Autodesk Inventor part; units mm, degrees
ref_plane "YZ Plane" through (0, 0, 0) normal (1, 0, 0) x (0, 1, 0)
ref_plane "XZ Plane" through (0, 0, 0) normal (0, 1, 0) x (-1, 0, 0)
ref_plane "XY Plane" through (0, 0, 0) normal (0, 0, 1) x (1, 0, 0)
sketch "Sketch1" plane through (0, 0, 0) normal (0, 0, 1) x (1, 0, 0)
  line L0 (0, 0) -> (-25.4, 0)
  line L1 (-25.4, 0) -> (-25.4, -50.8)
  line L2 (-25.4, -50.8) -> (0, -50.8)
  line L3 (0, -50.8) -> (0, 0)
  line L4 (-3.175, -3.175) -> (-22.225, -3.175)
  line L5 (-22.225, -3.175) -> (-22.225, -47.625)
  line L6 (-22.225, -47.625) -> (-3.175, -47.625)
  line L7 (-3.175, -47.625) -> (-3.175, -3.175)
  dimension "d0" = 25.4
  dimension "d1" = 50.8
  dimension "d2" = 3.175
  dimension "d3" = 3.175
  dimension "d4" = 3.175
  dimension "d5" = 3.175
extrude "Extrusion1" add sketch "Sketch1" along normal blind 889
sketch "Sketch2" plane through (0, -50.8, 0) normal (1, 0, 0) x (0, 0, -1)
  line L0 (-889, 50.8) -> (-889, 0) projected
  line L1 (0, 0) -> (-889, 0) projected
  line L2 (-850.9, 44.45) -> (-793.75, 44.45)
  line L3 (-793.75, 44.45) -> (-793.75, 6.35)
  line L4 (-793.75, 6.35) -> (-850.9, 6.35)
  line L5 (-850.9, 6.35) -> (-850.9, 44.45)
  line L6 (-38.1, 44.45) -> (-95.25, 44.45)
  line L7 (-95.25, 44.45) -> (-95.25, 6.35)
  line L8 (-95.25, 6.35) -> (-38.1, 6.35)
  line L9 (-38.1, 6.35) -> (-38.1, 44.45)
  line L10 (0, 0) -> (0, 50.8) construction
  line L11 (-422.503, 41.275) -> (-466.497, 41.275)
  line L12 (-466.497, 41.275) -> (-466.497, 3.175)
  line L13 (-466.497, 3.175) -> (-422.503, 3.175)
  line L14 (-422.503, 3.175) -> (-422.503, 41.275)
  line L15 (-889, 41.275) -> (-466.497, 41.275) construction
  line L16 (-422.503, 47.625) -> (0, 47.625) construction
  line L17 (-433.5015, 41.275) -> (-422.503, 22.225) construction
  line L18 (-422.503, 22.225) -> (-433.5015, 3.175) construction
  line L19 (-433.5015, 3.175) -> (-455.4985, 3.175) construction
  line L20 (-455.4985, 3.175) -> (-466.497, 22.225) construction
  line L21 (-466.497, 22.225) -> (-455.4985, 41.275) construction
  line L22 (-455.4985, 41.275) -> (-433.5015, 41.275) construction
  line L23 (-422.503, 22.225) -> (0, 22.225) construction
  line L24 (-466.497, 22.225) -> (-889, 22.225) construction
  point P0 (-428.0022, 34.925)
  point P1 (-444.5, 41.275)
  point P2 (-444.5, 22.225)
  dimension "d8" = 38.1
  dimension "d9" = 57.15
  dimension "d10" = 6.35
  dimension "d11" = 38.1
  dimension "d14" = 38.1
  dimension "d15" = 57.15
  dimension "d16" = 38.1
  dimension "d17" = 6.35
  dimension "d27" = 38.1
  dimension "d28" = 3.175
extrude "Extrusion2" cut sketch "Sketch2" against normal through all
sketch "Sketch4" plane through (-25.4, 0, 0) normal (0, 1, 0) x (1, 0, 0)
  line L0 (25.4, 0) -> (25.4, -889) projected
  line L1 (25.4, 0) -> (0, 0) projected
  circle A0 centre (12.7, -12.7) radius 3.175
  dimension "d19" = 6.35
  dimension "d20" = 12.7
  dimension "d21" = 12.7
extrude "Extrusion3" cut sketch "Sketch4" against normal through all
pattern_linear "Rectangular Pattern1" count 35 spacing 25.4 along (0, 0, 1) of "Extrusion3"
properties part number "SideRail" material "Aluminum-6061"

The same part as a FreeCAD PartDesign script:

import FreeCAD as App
import Part
import Sketcher

V = App.Vector
Q = App.Units.Quantity

doc = App.newDocument("Part")
body = doc.addObject("PartDesign::Body", "Body")

# Sketch on XY plane
sketch1 = body.newObject("Sketcher::SketchObject", "Sketch")
sketch1.AttachmentSupport = (doc.getObject("XY_Plane"), [""])
sketch1.MapMode = "FlatFace"
sketch1.addGeometry([
    Part.LineSegment(V(0, -51, 0), V(0, 0, 0)),  # 0
    Part.LineSegment(V(0, 0, 0), V(-25, 0, 0)),  # 1
    Part.LineSegment(V(-25, 0, 0), V(-25, -51, 0)),  # 2
    Part.LineSegment(V(-25, -51, 0), V(0, -51, 0)),  # 3
    Part.LineSegment(V(-22, -3, 0), V(-3, -3, 0)),  # 4
    Part.LineSegment(V(-3, -3, 0), V(-3, -48, 0)),  # 5
    Part.LineSegment(V(-3, -48, 0), V(-22, -48, 0)),  # 6
    Part.LineSegment(V(-22, -48, 0), V(-22, -3, 0)),  # 7
], False)
sketch1.addConstraint([
    Sketcher.Constraint("Coincident", 0, 2, 1, 1),
    Sketcher.Constraint("Coincident", 1, 2, 2, 1),
    Sketcher.Constraint("Coincident", 2, 2, 3, 1),
    Sketcher.Constraint("Coincident", 3, 2, 0, 1),
    Sketcher.Constraint("Coincident", 4, 2, 5, 1),
    Sketcher.Constraint("Coincident", 5, 2, 6, 1),
    Sketcher.Constraint("Coincident", 6, 2, 7, 1),
    Sketcher.Constraint("Coincident", 7, 2, 4, 1),
    Sketcher.Constraint("Vertical", 0),
    Sketcher.Constraint("Horizontal", 1),
    Sketcher.Constraint("Vertical", 2),
    Sketcher.Constraint("Horizontal", 3),
    Sketcher.Constraint("Horizontal", 4),
    Sketcher.Constraint("Vertical", 5),
    Sketcher.Constraint("Horizontal", 6),
    Sketcher.Constraint("Vertical", 7),
    Sketcher.Constraint("Coincident", 0, 2, -1, 1),
    Sketcher.Constraint("DistanceX", 1, 2, 1, 1, Q("1 in")),
    Sketcher.Constraint("DistanceY", 0, 1, 0, 2, Q("2 in")),
    Sketcher.Constraint("DistanceX", 4, 2, -1, 1, Q("0.125 in")),
    Sketcher.Constraint("DistanceY", 4, 2, -1, 1, Q("0.125 in")),
    Sketcher.Constraint("DistanceY", 3, 2, 5, 2, Q("0.125 in")),
    Sketcher.Constraint("DistanceX", 2, 2, 6, 2, Q("0.125 in")),
])
pad1 = body.newObject("PartDesign::Pad", "Pad")
pad1.Profile = sketch1
pad1.Length = Q("35 in")

# Sketch on YZ plane
sketch2 = body.newObject("Sketcher::SketchObject", "Sketch001")
sketch2.AttachmentSupport = (doc.getObject("YZ_Plane"), [""])
sketch2.MapMode = "FlatFace"
sketch2.addGeometry([
    Part.LineSegment(V(-6, 794, 0), V(-6, 851, 0)),  # 0
    Part.LineSegment(V(-6, 851, 0), V(-44, 851, 0)),  # 1
    Part.LineSegment(V(-44, 851, 0), V(-44, 794, 0)),  # 2
    Part.LineSegment(V(-44, 794, 0), V(-6, 794, 0)),  # 3
    Part.LineSegment(V(-44, 38, 0), V(-6, 38, 0)),  # 4
    Part.LineSegment(V(-6, 38, 0), V(-6, 95, 0)),  # 5
    Part.LineSegment(V(-6, 95, 0), V(-44, 95, 0)),  # 6
    Part.LineSegment(V(-44, 95, 0), V(-44, 38, 0)),  # 7
    Part.LineSegment(V(-48, 423, 0), V(-10, 423, 0)),  # 8
    Part.LineSegment(V(-10, 423, 0), V(-10, 466, 0)),  # 9
    Part.LineSegment(V(-10, 466, 0), V(-48, 466, 0)),  # 10
    Part.LineSegment(V(-48, 466, 0), V(-48, 423, 0)),  # 11
], False)
sketch2.addConstraint([
    Sketcher.Constraint("Coincident", 0, 2, 1, 1),
    Sketcher.Constraint("Coincident", 1, 2, 2, 1),
    Sketcher.Constraint("Coincident", 2, 2, 3, 1),
    Sketcher.Constraint("Coincident", 3, 2, 0, 1),
    Sketcher.Constraint("Coincident", 4, 2, 5, 1),
    Sketcher.Constraint("Coincident", 5, 2, 6, 1),
    Sketcher.Constraint("Coincident", 6, 2, 7, 1),
    Sketcher.Constraint("Coincident", 7, 2, 4, 1),
    Sketcher.Constraint("Coincident", 8, 2, 9, 1),
    Sketcher.Constraint("Coincident", 9, 2, 10, 1),
    Sketcher.Constraint("Coincident", 10, 2, 11, 1),
    Sketcher.Constraint("Coincident", 11, 2, 8, 1),
    Sketcher.Constraint("Vertical", 0),
    Sketcher.Constraint("Horizontal", 1),
    Sketcher.Constraint("Vertical", 2),
    Sketcher.Constraint("Horizontal", 3),
    Sketcher.Constraint("Horizontal", 4),
    Sketcher.Constraint("Vertical", 5),
    Sketcher.Constraint("Horizontal", 6),
    Sketcher.Constraint("Vertical", 7),
    Sketcher.Constraint("Horizontal", 8),
    Sketcher.Constraint("Vertical", 9),
    Sketcher.Constraint("Horizontal", 10),
    Sketcher.Constraint("Vertical", 11),
    Sketcher.Constraint("Vertical", 3, 2, 4, 2),
    Sketcher.Constraint("Vertical", 2, 2, 6, 2),
    Sketcher.Constraint("Equal", 6, 8),
    Sketcher.Constraint("Equal", 2, 5),
    Sketcher.Constraint("DistanceX", 1, 2, 1, 1, Q("1.5 in")),
    Sketcher.Constraint("DistanceY", 0, 1, 0, 2, Q("2.25 in")),
    Sketcher.Constraint("DistanceY", -1, 1, 4, 2, Q("1.5 in")),
    Sketcher.Constraint("DistanceX", 0, 2, -1, 1, Q("0.25 in")),
    Sketcher.Constraint("DistanceY", 4, 2, 0, 2, Q("32 in")),
    Sketcher.Constraint("DistanceX", 8, 2, 5, 2, Q("0.125 in")),
    Sketcher.Constraint("DistanceY", 9, 1, 9, 2, 43.994),
    Sketcher.Constraint("DistanceY", -1, 1, 8, 2, 422.503),
])
pocket1 = body.newObject("PartDesign::Pocket", "Pocket")
pocket1.Profile = sketch2
pocket1.Type = "ThroughAll"

# Sketch on XZ plane
sketch3 = body.newObject("Sketcher::SketchObject", "Sketch002")
sketch3.AttachmentSupport = (doc.getObject("XZ_Plane"), [""])
sketch3.MapMode = "FlatFace"
sketch3.addGeometry(Part.Circle(V(-12.7, 12.7, 0), V(0, 0, 1), 3.2), False)
sketch3.addConstraint([
    Sketcher.Constraint("Diameter", 0, Q("0.25 in")),
    Sketcher.Constraint("DistanceX", 0, 3, -1, 1, Q("0.5 in")),
    Sketcher.Constraint("DistanceY", -1, 1, 0, 3, Q("0.5 in")),
])
pocket2 = body.newObject("PartDesign::Pocket", "Pocket001")
pocket2.Profile = sketch3
pocket2.Type = "ThroughAll"
pocket2.Reversed = True
doc.recompute()

linearpattern = body.newObject("PartDesign::LinearPattern", "LinearPattern")
linearpattern.Originals = [pocket2]
linearpattern.Direction = (doc.getObject("Z_Axis"), [""])
linearpattern.Mode = "offset"
linearpattern.Offset = Q("1 in")
linearpattern.Occurrences = 35
body.Tip = linearpattern

doc.recompute()
